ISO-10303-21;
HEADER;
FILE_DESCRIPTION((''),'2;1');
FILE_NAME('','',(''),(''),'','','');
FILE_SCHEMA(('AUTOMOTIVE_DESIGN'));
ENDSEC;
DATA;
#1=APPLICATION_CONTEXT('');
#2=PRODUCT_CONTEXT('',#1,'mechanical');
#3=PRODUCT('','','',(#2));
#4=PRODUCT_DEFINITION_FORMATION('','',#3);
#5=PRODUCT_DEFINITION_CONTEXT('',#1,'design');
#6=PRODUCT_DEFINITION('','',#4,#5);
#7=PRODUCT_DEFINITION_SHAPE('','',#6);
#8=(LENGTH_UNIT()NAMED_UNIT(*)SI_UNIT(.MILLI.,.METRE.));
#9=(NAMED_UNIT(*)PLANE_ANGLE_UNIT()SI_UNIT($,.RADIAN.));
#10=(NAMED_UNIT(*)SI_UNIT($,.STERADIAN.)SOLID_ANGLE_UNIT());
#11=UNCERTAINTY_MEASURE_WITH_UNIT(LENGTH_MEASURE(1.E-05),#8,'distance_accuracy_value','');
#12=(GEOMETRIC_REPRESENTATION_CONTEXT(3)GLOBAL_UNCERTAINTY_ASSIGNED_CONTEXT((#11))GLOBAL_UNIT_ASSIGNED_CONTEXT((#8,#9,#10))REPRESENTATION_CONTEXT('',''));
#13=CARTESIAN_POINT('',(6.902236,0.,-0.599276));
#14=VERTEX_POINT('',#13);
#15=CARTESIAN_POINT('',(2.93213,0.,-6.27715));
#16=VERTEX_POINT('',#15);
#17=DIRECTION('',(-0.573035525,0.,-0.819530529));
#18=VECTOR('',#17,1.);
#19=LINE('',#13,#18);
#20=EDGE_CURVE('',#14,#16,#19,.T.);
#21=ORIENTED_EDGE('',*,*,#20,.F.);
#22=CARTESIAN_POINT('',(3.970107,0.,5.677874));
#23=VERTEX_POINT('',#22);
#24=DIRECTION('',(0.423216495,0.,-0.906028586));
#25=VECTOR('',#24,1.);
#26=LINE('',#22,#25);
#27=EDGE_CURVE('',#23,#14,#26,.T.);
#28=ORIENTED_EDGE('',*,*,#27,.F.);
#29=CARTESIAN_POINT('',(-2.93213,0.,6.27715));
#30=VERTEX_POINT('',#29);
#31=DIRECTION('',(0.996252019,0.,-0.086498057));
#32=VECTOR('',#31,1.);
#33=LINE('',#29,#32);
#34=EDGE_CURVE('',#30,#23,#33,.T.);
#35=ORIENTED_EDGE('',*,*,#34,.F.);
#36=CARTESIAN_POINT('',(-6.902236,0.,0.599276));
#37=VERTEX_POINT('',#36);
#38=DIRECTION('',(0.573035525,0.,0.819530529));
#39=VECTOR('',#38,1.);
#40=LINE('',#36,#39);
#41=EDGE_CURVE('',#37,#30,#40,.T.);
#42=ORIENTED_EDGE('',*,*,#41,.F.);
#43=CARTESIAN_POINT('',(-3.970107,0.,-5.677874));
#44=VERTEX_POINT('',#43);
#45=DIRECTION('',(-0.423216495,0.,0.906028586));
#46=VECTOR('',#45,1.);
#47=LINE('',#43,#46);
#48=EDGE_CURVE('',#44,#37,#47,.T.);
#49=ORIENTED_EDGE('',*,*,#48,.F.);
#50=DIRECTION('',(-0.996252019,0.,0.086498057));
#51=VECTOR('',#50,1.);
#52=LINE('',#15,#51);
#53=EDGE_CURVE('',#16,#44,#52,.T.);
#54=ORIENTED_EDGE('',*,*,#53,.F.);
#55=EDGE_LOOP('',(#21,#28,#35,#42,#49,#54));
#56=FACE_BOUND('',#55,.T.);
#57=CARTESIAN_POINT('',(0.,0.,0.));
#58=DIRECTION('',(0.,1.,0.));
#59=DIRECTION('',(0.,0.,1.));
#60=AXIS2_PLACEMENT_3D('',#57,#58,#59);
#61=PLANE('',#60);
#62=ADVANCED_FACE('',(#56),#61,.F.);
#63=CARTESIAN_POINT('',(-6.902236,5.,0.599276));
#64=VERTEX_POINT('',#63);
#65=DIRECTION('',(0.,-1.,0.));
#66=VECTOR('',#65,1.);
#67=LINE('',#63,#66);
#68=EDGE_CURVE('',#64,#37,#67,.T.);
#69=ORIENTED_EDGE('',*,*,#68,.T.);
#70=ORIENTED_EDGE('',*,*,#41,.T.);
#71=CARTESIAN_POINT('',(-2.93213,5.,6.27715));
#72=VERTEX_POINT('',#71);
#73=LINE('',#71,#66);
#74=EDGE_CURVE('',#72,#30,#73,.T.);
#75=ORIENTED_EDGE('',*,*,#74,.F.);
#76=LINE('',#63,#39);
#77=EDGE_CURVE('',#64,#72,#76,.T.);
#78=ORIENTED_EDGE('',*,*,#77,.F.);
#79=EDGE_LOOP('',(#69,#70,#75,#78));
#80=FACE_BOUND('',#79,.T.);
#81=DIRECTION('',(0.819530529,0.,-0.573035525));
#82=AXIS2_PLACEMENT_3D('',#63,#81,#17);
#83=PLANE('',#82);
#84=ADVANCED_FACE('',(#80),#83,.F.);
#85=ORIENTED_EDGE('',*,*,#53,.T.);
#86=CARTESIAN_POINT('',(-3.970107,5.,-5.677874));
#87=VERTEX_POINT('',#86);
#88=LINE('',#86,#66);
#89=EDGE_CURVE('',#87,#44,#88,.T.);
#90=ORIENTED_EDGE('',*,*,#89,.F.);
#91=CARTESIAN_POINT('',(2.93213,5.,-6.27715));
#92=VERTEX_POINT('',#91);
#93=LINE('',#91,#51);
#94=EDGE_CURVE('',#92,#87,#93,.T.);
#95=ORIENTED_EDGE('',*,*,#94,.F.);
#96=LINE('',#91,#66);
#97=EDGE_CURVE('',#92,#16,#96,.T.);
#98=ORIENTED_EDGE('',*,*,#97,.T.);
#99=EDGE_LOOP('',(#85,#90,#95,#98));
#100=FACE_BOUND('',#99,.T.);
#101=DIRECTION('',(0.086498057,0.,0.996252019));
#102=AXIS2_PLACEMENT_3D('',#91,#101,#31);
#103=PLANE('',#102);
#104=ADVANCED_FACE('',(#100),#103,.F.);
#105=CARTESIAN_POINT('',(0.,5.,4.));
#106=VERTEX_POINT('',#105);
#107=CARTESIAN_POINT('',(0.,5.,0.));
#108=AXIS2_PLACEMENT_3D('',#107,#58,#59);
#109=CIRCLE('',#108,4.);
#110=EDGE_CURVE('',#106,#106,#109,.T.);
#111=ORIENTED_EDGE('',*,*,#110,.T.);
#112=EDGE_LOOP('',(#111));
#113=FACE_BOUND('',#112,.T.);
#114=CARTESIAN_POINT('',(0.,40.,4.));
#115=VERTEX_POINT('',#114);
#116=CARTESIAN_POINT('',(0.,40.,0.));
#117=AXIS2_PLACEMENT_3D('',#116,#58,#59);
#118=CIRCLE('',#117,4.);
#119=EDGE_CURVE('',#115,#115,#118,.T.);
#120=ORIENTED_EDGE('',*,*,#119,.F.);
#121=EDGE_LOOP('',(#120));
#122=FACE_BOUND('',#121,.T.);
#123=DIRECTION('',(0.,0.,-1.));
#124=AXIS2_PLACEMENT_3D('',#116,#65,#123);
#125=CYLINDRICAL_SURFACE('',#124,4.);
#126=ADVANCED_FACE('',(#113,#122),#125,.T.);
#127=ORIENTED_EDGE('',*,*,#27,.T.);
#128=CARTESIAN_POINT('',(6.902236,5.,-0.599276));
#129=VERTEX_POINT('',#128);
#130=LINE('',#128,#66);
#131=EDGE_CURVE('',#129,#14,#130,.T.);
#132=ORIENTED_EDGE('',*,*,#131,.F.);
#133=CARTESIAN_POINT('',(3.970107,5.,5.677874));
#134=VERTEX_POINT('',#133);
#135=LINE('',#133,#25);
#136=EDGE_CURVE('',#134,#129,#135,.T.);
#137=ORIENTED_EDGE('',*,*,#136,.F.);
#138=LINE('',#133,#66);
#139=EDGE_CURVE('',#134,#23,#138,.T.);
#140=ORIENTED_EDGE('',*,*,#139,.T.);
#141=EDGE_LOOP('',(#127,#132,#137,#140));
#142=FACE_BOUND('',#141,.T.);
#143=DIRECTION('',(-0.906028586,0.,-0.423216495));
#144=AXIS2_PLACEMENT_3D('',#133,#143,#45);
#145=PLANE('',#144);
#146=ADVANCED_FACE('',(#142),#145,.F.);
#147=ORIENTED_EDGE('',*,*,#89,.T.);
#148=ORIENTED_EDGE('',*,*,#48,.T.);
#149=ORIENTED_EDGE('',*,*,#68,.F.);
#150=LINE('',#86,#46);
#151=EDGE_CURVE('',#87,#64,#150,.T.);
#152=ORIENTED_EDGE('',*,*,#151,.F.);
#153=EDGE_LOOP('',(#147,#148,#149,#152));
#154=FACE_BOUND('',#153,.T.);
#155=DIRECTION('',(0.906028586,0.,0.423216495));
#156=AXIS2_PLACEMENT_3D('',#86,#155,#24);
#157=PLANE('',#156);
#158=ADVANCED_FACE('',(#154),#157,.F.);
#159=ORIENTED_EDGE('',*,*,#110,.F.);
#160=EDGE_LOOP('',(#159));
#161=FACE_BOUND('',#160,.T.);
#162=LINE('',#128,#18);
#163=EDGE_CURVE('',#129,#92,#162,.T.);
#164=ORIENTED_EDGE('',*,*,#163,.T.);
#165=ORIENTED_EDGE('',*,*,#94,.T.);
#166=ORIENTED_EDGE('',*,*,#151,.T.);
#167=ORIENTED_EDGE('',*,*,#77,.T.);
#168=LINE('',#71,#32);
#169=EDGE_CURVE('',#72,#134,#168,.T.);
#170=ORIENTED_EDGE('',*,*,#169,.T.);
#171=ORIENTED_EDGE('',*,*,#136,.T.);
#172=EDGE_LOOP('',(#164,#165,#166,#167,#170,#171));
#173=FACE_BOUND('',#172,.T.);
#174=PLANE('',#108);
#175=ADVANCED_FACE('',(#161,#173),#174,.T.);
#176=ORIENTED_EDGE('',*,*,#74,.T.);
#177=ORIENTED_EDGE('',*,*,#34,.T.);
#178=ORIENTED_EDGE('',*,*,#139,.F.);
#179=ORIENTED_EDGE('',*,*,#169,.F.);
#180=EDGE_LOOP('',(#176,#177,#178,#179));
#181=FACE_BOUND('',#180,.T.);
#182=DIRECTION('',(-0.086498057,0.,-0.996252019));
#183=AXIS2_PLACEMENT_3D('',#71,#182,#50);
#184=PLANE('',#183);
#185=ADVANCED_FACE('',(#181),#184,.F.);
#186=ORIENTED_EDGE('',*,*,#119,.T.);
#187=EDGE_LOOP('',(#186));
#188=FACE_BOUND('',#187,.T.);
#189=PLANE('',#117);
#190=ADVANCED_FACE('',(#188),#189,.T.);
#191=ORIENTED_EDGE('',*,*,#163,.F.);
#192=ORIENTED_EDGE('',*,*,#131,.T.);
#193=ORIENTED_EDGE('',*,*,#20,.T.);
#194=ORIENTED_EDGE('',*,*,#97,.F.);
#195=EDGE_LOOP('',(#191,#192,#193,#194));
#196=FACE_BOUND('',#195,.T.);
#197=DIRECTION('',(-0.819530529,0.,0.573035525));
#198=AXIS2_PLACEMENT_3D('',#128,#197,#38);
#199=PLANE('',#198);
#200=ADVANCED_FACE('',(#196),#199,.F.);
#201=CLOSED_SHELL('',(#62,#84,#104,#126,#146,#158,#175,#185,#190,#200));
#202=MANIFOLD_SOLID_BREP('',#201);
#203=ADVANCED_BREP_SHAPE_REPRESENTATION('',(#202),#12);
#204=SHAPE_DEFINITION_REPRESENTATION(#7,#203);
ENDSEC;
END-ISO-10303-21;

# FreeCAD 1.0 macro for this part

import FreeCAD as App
import Part
import Sketcher

V = App.Vector


def add_polygon(sketch, points):
    """Adds a closed chain of lines whose ends are joined by coincident constraints."""
    first, n = sketch.GeometryCount, len(points)
    for a, b in zip(points, points[1:] + points[:1]):
        sketch.addGeometry(Part.LineSegment(App.Vector(*a, 0), App.Vector(*b, 0)), False)
    for i in range(n):
        sketch.addConstraint(Sketcher.Constraint("Coincident", first + i, 2, first + (i + 1) % n, 1))

doc = App.newDocument("Part")
body = doc.addObject("PartDesign::Body", "Body")

# Sketch on XZ plane
sketch1 = body.newObject("Sketcher::SketchObject", "Sketch")
sketch1.AttachmentSupport = (doc.getObject("XZ_Plane"), [""])
sketch1.MapMode = "FlatFace"
add_polygon(sketch1, [(4, 6), (7, -1), (3, -6), (-4, -6), (-7, 1), (-3, 6)])  # lines 0-5
sketch1.addConstraint(Sketcher.Constraint("Symmetric", 0, 2, 3, 2, -1, 1))
sketch1.addConstraint(Sketcher.Constraint("Symmetric", 1, 2, 4, 2, -1, 1))
sketch1.addConstraint(Sketcher.Constraint("Symmetric", 2, 2, 5, 2, -1, 1))
sketch1.addConstraint(Sketcher.Constraint("Equal", 0, 1))
sketch1.addConstraint(Sketcher.Constraint("Equal", 1, 2))
sketch1.addConstraint(Sketcher.Constraint("DistanceY", 1, 2, 4, 2, 12.5543))
sketch1.addConstraint(Sketcher.Constraint("DistanceX", -1, 1, 1, 2, 2.93213))
sketch1.addConstraint(Sketcher.Constraint("DistanceX", 3, 2, 2, 2, 2.93213))
sketch1.addConstraint(Sketcher.Constraint("DistanceY", 2, 2, 3, 2, 6.27715))
pad1 = body.newObject("PartDesign::Pad", "Pad")
pad1.Profile = sketch1
pad1.Length = 5
pad1.Reversed = True

# Sketch on XZ plane
sketch2 = body.newObject("Sketcher::SketchObject", "Sketch001")
sketch2.AttachmentSupport = (doc.getObject("XZ_Plane"), [""])
sketch2.MapMode = "FlatFace"
sketch2.AttachmentOffset = App.Placement(V(0, 0, -5), App.Rotation())
sketch2.addGeometry(Part.Circle(V(0, 0, 0), V(0, 0, 1), 4), False)
sketch2.addConstraint(Sketcher.Constraint("Coincident", 0, 3, -1, 1))
sketch2.addConstraint(Sketcher.Constraint("Diameter", 0, 8.0))
pad2 = body.newObject("PartDesign::Pad", "Pad001")
pad2.Profile = sketch2
pad2.Length = 35
pad2.Reversed = True

doc.recompute()
